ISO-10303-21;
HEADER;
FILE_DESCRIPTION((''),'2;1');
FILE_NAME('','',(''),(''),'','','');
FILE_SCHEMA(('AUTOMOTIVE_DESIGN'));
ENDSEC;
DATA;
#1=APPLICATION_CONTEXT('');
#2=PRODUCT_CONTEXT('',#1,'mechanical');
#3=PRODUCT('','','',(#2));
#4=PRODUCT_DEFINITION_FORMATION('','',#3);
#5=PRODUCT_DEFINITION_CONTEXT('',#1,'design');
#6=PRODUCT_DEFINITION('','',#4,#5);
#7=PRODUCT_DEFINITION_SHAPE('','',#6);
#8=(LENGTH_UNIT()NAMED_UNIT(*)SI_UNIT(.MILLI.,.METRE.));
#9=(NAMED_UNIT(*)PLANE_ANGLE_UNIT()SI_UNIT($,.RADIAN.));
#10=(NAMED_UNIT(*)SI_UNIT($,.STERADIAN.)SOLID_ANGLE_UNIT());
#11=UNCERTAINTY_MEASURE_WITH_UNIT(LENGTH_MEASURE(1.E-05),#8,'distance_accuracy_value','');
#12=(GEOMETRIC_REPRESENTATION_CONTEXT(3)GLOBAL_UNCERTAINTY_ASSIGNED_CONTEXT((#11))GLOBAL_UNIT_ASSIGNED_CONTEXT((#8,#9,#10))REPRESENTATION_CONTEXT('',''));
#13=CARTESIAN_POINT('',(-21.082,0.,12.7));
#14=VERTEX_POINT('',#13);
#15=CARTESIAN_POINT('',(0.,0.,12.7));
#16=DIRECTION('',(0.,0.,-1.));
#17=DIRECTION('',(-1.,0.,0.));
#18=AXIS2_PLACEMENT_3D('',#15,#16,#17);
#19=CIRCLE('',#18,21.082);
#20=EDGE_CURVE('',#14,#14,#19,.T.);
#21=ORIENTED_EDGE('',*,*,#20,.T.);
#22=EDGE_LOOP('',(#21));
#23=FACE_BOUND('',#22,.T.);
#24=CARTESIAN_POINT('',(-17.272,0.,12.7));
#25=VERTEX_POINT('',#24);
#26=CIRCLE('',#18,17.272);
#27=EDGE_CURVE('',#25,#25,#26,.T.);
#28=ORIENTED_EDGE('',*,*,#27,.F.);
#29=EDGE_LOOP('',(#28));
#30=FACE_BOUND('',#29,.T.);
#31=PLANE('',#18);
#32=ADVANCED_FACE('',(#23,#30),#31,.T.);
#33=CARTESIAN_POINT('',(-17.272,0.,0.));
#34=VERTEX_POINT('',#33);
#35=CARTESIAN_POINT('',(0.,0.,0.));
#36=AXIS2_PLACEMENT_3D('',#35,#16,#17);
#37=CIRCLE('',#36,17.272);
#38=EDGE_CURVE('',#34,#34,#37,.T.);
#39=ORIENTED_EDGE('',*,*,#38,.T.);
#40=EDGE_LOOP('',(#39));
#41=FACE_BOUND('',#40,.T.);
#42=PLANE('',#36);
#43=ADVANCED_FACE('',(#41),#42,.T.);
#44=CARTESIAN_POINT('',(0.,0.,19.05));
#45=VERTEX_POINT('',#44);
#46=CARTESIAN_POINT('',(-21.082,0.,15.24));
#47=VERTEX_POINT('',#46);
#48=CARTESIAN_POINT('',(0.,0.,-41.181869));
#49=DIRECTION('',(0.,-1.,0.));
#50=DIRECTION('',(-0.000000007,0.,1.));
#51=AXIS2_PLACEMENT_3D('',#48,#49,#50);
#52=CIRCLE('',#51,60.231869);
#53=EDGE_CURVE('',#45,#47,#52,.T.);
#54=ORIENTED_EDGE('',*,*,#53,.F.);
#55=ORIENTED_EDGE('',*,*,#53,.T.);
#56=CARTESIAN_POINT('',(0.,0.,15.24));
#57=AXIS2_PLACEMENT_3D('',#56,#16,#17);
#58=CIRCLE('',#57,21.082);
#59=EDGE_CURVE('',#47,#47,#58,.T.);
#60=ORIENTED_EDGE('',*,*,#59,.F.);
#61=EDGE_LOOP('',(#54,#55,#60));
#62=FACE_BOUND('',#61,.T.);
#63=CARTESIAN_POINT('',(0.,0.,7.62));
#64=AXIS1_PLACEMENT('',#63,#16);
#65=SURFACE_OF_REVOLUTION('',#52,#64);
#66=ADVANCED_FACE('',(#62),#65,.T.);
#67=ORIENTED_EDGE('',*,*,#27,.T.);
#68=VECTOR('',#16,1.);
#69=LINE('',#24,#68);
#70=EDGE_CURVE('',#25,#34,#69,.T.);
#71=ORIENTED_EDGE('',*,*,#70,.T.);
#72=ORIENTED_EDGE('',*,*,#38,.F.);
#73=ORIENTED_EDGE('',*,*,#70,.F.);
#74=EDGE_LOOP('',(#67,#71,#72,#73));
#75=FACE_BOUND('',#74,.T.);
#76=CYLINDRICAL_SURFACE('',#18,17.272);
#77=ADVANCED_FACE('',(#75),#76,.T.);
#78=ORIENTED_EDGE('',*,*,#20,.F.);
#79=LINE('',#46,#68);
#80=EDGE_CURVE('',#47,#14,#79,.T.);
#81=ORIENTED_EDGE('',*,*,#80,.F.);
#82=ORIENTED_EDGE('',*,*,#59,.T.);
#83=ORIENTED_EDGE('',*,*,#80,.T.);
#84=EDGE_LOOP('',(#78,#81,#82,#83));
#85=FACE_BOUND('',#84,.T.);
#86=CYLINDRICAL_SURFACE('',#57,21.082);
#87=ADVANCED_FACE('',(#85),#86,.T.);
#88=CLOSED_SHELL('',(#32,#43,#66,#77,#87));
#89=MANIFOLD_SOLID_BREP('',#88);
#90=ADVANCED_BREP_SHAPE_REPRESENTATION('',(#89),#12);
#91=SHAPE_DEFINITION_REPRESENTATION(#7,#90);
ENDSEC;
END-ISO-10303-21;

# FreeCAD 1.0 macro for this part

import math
import FreeCAD as App
import Part
import Sketcher
Q = App.Units.Quantity

doc = App.newDocument("Part")
body = doc.addObject("PartDesign::Body", "Body")

# Sketch on XZ plane
sketch1 = body.newObject("Sketcher::SketchObject", "Sketch")
sketch1.AttachmentSupport = (doc.getObject("XZ_Plane"), [""])
sketch1.MapMode = "FlatFace"
sketch1.addGeometry([
    Part.LineSegment(App.Vector(-17.3, 0, 0), App.Vector(0, 0, 0)),  # 0
    Part.LineSegment(App.Vector(0, 0, 0), App.Vector(0, 19.1, 0)),  # 1
    Part.ArcOfCircle(Part.Circle(App.Vector(0, -41.2, 0), App.Vector(0, 0, 1), 60.2), math.radians(90), math.radians(110)),  # 2
    Part.LineSegment(App.Vector(-21.1, 15.2, 0), App.Vector(-21.1, 12.7, 0)),  # 3
    Part.LineSegment(App.Vector(-21.1, 12.7, 0), App.Vector(-17.3, 12.7, 0)),  # 4
    Part.LineSegment(App.Vector(-17.3, 12.7, 0), App.Vector(-17.3, 0, 0)),  # 5
], False)
sketch1.addConstraint([
    Sketcher.Constraint("Coincident", 0, 2, 1, 1),
    Sketcher.Constraint("Coincident", 1, 2, 2, 1),
    Sketcher.Constraint("Coincident", 2, 2, 3, 1),
    Sketcher.Constraint("Coincident", 3, 2, 4, 1),
    Sketcher.Constraint("Coincident", 4, 2, 5, 1),
    Sketcher.Constraint("Coincident", 5, 2, 0, 1),
    Sketcher.Constraint("Horizontal", 0),
    Sketcher.Constraint("Vertical", 1),
    Sketcher.Constraint("Vertical", 3),
    Sketcher.Constraint("Horizontal", 4),
    Sketcher.Constraint("Vertical", 5),
    Sketcher.Constraint("Coincident", 0, 2, -1, 1),
    Sketcher.Constraint("PointOnObject", 2, 3, -2),
    Sketcher.Constraint("DistanceY", 3, 2, 3, 1, Q("0.1 in")),
    Sketcher.Constraint("DistanceY", 5, 2, 5, 1, Q("0.5 in")),
    Sketcher.Constraint("DistanceX", 0, 1, 0, 2, Q("0.68 in")),
    Sketcher.Constraint("DistanceX", 4, 1, 4, 2, Q("0.15 in")),
    Sketcher.Constraint("DistanceY", 1, 1, 1, 2, Q("0.75 in")),
])
revolution = body.newObject("PartDesign::Revolution", "Revolution")
revolution.Profile = sketch1
revolution.ReferenceAxis = (sketch1, ["V_Axis"])
revolution.Angle = 360

doc.recompute()
